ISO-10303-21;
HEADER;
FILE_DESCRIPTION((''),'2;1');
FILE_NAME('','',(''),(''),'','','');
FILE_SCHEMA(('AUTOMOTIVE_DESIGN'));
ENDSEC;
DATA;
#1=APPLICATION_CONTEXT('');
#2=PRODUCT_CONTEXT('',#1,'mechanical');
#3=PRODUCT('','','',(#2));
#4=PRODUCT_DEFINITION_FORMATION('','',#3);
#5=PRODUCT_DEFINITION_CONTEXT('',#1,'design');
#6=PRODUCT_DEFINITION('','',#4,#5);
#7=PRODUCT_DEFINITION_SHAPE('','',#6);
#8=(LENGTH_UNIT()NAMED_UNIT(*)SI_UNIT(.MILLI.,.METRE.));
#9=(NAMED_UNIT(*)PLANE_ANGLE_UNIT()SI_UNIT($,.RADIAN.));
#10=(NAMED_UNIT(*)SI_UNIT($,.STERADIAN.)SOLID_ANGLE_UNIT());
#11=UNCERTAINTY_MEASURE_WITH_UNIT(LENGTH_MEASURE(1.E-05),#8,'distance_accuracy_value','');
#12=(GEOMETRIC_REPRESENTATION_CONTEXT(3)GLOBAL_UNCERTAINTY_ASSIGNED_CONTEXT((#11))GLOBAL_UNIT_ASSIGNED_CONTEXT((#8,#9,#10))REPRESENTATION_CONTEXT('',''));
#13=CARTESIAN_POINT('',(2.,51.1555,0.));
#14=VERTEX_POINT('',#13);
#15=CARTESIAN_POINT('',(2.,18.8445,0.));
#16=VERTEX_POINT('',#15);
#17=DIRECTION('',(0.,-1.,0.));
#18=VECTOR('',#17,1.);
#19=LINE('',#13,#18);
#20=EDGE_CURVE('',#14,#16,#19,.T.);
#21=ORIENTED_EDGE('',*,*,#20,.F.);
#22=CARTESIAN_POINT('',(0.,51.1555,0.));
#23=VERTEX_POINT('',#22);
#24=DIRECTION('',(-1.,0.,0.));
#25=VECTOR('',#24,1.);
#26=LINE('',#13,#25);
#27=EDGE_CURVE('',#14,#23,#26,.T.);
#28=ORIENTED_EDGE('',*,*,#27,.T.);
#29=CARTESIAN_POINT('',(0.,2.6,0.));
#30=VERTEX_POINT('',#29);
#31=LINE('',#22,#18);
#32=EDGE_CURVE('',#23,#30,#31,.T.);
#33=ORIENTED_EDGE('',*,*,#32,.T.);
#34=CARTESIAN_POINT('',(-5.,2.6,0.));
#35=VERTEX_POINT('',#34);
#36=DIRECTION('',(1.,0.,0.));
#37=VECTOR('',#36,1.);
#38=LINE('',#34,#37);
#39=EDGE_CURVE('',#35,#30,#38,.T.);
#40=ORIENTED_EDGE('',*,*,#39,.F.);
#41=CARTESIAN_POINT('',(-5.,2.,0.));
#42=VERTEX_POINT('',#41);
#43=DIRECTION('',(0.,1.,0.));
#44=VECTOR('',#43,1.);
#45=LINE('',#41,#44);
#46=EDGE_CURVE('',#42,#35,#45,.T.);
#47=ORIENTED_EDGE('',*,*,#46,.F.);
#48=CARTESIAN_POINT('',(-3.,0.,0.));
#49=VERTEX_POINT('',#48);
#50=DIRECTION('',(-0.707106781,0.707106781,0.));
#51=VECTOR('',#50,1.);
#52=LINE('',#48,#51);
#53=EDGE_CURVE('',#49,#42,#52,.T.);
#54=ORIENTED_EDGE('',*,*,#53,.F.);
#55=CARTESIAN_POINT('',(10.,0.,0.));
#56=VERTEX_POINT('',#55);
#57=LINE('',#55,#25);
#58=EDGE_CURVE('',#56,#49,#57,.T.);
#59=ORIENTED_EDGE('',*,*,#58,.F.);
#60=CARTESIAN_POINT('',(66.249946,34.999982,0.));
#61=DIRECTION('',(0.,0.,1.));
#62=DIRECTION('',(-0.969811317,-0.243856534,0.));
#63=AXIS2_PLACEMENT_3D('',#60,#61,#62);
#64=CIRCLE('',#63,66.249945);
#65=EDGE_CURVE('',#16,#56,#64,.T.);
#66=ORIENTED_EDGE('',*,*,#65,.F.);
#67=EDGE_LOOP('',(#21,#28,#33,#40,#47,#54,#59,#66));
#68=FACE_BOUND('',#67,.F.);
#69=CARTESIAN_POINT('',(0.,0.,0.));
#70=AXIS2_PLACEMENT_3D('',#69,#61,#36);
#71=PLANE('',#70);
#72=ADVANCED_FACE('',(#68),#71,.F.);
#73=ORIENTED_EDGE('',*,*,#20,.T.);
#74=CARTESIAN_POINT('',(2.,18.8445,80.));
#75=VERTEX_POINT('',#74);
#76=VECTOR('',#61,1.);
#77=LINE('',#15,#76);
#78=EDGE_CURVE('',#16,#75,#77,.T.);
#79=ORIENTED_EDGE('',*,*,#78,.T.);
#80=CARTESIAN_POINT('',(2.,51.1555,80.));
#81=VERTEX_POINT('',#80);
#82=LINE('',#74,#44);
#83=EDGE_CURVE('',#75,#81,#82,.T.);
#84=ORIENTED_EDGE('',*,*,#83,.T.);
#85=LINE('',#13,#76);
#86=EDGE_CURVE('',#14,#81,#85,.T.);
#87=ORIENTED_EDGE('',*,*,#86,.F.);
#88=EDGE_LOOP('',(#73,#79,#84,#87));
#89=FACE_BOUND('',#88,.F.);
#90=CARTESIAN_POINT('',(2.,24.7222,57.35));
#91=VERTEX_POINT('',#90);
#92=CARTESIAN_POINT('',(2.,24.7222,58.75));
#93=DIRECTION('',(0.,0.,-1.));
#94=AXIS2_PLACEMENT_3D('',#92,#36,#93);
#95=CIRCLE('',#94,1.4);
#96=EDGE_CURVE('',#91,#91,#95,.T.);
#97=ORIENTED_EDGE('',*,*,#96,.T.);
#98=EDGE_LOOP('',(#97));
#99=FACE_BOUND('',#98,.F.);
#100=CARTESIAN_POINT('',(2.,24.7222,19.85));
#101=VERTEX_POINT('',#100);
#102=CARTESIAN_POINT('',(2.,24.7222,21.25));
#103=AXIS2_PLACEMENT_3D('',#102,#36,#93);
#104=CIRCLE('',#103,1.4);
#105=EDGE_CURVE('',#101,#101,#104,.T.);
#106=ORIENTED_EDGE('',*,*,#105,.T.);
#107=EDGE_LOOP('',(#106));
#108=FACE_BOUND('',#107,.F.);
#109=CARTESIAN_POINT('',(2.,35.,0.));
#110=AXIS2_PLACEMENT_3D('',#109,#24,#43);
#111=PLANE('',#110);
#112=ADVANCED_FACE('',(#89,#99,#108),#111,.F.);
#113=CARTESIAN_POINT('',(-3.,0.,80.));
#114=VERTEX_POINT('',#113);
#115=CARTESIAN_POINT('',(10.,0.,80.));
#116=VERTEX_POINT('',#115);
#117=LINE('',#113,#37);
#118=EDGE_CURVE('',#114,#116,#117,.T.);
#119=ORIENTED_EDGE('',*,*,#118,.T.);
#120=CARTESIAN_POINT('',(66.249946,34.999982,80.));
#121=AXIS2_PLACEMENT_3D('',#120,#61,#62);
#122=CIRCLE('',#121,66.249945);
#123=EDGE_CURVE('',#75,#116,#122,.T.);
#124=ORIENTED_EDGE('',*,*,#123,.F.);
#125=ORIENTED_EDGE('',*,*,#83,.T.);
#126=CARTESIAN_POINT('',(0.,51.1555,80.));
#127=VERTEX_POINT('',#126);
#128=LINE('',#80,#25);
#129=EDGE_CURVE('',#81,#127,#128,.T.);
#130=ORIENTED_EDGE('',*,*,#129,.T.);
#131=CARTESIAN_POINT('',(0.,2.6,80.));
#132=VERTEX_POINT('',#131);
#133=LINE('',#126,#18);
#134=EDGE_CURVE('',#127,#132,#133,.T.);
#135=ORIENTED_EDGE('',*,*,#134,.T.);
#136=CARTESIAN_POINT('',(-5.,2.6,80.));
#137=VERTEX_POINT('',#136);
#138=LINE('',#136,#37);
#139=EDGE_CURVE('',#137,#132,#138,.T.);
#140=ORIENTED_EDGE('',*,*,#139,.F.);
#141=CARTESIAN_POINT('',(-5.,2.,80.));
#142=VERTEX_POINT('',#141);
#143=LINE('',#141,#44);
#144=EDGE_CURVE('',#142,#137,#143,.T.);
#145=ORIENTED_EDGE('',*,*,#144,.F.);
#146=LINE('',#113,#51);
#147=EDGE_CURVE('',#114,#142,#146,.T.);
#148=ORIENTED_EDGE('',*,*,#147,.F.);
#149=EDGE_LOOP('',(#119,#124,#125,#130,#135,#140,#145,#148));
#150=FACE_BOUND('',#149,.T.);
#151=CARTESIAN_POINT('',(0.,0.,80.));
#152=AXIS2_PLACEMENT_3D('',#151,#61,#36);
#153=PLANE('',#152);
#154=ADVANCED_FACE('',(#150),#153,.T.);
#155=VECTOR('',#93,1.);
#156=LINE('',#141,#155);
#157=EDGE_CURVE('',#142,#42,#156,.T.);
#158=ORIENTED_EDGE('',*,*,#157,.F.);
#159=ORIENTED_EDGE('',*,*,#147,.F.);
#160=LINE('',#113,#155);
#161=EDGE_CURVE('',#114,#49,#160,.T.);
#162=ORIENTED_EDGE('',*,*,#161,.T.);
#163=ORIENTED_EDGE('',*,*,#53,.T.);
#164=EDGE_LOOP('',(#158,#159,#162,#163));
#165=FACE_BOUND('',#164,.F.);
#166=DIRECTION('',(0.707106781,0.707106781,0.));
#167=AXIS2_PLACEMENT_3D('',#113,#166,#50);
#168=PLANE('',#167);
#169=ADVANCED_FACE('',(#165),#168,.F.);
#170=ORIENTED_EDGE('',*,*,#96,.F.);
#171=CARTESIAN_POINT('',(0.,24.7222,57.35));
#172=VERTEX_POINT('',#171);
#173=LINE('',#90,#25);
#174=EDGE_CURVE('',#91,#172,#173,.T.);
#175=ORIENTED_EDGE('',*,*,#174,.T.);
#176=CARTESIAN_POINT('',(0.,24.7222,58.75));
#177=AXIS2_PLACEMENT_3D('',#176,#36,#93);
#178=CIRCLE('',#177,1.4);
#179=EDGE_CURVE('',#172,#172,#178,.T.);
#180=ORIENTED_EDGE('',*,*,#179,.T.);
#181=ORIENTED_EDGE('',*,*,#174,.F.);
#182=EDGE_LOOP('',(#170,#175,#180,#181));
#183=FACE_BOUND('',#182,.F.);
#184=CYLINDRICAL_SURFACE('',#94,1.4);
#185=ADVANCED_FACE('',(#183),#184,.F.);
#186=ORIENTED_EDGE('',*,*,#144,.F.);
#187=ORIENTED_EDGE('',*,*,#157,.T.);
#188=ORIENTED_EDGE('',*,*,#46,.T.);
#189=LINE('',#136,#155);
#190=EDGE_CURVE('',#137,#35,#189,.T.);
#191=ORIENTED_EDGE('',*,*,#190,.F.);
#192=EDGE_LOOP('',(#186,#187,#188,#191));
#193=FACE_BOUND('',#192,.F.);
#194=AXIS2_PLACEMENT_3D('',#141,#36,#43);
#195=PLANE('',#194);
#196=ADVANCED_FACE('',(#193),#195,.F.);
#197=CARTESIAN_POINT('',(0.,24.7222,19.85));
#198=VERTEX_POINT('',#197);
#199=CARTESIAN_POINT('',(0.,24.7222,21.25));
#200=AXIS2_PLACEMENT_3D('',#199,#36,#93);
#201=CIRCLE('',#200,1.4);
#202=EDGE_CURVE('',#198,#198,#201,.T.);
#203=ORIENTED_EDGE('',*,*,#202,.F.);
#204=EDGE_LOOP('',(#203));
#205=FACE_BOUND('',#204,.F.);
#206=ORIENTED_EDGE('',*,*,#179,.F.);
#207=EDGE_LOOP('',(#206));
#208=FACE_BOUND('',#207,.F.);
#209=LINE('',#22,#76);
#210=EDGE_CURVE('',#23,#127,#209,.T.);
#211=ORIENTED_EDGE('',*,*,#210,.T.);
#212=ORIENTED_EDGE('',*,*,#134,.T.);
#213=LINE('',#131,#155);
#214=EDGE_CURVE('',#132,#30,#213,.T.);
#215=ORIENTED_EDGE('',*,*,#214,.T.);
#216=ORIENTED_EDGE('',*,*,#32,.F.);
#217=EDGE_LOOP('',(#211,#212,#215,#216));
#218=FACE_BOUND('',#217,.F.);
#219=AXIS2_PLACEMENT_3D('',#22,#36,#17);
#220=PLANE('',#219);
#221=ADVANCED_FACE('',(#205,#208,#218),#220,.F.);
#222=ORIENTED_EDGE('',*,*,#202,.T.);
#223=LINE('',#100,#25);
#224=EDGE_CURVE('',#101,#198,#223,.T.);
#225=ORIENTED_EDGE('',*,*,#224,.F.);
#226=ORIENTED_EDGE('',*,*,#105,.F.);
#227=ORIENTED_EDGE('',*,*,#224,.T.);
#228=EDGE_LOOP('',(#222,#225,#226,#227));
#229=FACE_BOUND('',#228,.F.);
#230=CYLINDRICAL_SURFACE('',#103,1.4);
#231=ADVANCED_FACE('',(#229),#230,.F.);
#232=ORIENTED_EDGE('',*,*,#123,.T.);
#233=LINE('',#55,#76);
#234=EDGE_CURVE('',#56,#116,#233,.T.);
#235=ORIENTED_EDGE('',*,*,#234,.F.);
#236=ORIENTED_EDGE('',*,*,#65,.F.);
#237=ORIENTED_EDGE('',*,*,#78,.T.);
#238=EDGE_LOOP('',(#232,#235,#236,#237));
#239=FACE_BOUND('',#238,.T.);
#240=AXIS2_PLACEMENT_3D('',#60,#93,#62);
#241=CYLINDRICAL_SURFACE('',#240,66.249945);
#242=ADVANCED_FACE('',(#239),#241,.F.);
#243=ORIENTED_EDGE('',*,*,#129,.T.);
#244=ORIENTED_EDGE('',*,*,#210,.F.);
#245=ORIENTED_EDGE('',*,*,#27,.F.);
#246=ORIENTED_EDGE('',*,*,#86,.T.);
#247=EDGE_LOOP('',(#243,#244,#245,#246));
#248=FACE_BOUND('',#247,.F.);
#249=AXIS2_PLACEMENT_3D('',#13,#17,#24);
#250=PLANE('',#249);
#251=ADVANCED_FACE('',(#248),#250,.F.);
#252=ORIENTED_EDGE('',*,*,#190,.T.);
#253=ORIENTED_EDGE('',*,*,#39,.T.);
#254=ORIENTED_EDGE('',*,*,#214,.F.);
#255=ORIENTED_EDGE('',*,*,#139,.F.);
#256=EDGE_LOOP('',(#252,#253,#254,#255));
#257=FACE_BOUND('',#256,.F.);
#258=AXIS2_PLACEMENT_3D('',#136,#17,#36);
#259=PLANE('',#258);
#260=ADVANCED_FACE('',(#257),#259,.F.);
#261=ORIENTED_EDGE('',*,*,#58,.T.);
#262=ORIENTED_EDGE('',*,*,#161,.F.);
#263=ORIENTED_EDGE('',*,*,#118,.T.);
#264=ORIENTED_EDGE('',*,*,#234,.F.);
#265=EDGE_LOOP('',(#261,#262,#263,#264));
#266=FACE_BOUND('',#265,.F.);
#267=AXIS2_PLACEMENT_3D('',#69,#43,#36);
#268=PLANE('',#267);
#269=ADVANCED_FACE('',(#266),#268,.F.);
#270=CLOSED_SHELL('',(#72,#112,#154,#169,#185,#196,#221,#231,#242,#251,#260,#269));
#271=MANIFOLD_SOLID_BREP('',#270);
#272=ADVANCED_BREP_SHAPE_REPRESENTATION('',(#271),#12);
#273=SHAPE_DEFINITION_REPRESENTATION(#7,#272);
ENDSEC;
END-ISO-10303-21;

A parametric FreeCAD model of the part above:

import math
import FreeCAD as App
import Part
import Sketcher
from FreeCAD import Vector
Q = App.Units.Quantity

doc = App.newDocument("Part")
params = doc.addObject("Spreadsheet::Sheet", "Params")
for row, (alias, value) in enumerate([
    ("sketch1_width", "10 mm"),
    ("sketch1_width2", "2 mm"),
    ("sketch1_radius", "66.25 mm"),
    ("pad1_length", "80 mm"),
    ("sketch2_width", "5 mm"),
    ("sketch2_height", "2.6 mm"),
    ("pad2_length", "80 mm"),
    ("sketch3_diameter", "2.8 mm"),
    ("pocket1_length", "80 mm"),
], start=1):
    params.set(f"A{row}", alias)
    params.set(f"B{row}", "=" + value)
    params.setAlias(f"B{row}", alias)

body = doc.addObject("PartDesign::Body", "Body")

sketch1 = doc.addObject("Sketcher::SketchObject", "Sketch")
body.addObject(sketch1)
sketch1.AttachmentSupport = (doc.XY_Plane, [""])
sketch1.MapMode = "FlatFace"
sketch1.addGeometry([
    Part.LineSegment(Vector(0, 51.2, 0), Vector(0, 0, 0)),
    Part.LineSegment(Vector(0, 0, 0), Vector(10, 0, 0)),
    Part.ArcOfCircle(Part.Circle(Vector(66.2, 35, 0), Vector(0, 0, 1), 66.3), math.radians(-165.89), math.radians(-148.11)),
    Part.LineSegment(Vector(2, 18.8, 0), Vector(2, 51.2, 0)),
    Part.LineSegment(Vector(2, 51.2, 0), Vector(0, 51.2, 0)),
], False)
sketch1.addConstraint([
    Sketcher.Constraint("Coincident", 0, 2, 1, 1),
    Sketcher.Constraint("Coincident", 1, 2, 2, 2),
    Sketcher.Constraint("Coincident", 2, 1, 3, 1),
    Sketcher.Constraint("Coincident", 3, 2, 4, 1),
    Sketcher.Constraint("Coincident", 4, 2, 0, 1),
    Sketcher.Constraint("Vertical", 0),
    Sketcher.Constraint("Horizontal", 1),
    Sketcher.Constraint("Vertical", 3),
    Sketcher.Constraint("Horizontal", 4),
    Sketcher.Constraint("Coincident", 0, 2, -1, 1),
    Sketcher.Constraint("DistanceX", 1, 1, 1, 2, Q("10 mm")),
    Sketcher.Constraint("DistanceX", 4, 2, 4, 1, Q("2 mm")),
    Sketcher.Constraint("Radius", 2, Q("66.25 mm")),
    Sketcher.Constraint("DistanceY", -1, 1, 2, 3, Q("35 mm")),
    Sketcher.Constraint("DistanceY", 3, 1, 3, 2, Q("32.311 mm")),
])
sketch1.setExpression("Constraints[10]", "Params.sketch1_width")
sketch1.setExpression("Constraints[11]", "Params.sketch1_width2")
sketch1.setExpression("Constraints[12]", "Params.sketch1_radius")
pad1 = doc.addObject("PartDesign::Pad", "Pad")
body.addObject(pad1)
pad1.Profile = sketch1
pad1.setExpression("Length", "Params.pad1_length")

sketch2 = doc.addObject("Sketcher::SketchObject", "Sketch001")
body.addObject(sketch2)
sketch2.AttachmentSupport = (doc.XY_Plane, [""])
sketch2.MapMode = "FlatFace"
sketch2.AttachmentOffset = App.Placement(Vector(0, 0, 80), App.Rotation())
sketch2.addGeometry([
    Part.LineSegment(Vector(-3, 0, 0), Vector(0, 0, 0)),
    Part.LineSegment(Vector(0, 0, 0), Vector(0, 2.6, 0)),
    Part.LineSegment(Vector(0, 2.6, 0), Vector(-5, 2.6, 0)),
    Part.LineSegment(Vector(-5, 2.6, 0), Vector(-5, 2, 0)),
    Part.LineSegment(Vector(-5, 2, 0), Vector(-3, 0, 0)),
], False)
sketch2.addConstraint([
    Sketcher.Constraint("Coincident", 0, 2, 1, 1),
    Sketcher.Constraint("Coincident", 1, 2, 2, 1),
    Sketcher.Constraint("Coincident", 2, 2, 3, 1),
    Sketcher.Constraint("Coincident", 3, 2, 4, 1),
    Sketcher.Constraint("Coincident", 4, 2, 0, 1),
    Sketcher.Constraint("Horizontal", 0),
    Sketcher.Constraint("Vertical", 1),
    Sketcher.Constraint("Horizontal", 2),
    Sketcher.Constraint("Vertical", 3),
    Sketcher.Constraint("Coincident", 0, 2, -1, 1),
    Sketcher.Constraint("DistanceX", 2, 2, 2, 1, Q("5 mm")),
    Sketcher.Constraint("DistanceY", 1, 1, 1, 2, Q("2.6 mm")),
    Sketcher.Constraint("DistanceY", -1, 1, 3, 2, Q("2 mm")),
    Sketcher.Constraint("DistanceX", 3, 2, 4, 2, Q("2 mm")),
])
sketch2.setExpression("Constraints[10]", "Params.sketch2_width")
sketch2.setExpression("Constraints[11]", "Params.sketch2_height")
pad2 = doc.addObject("PartDesign::Pad", "Pad001")
body.addObject(pad2)
pad2.Profile = sketch2
pad2.setExpression("Length", "Params.pad2_length")
pad2.Reversed = True

sketch3 = doc.addObject("Sketcher::SketchObject", "Sketch002")
body.addObject(sketch3)
sketch3.AttachmentSupport = (doc.YZ_Plane, [""])
sketch3.MapMode = "FlatFace"
sketch3.AttachmentOffset = App.Placement(Vector(0, 0, 2), App.Rotation())
sketch3.addGeometry([
    Part.Circle(Vector(24.7, 58.8, 0), Vector(0, 0, 1), 1.4),
    Part.Circle(Vector(24.7, 21.2, 0), Vector(0, 0, 1), 1.4),
], False)
sketch3.addConstraint([
    Sketcher.Constraint("Equal", 0, 1),
    Sketcher.Constraint("Vertical", 0, 3, 1, 3),
    Sketcher.Constraint("Diameter", 0, Q("2.8 mm")),
    Sketcher.Constraint("DistanceY", 1, 3, 0, 3, Q("37.5 mm")),
    Sketcher.Constraint("DistanceY", -1, 1, 0, 3, Q("58.75 mm")),
    Sketcher.Constraint("DistanceX", -1, 1, 0, 3, Q("24.7222 mm")),
])
sketch3.setExpression("Constraints[2]", "Params.sketch3_diameter")
pocket1 = doc.addObject("PartDesign::Pocket", "Pocket")
body.addObject(pocket1)
pocket1.Profile = sketch3
pocket1.setExpression("Length", "Params.pocket1_length")

doc.recompute()
